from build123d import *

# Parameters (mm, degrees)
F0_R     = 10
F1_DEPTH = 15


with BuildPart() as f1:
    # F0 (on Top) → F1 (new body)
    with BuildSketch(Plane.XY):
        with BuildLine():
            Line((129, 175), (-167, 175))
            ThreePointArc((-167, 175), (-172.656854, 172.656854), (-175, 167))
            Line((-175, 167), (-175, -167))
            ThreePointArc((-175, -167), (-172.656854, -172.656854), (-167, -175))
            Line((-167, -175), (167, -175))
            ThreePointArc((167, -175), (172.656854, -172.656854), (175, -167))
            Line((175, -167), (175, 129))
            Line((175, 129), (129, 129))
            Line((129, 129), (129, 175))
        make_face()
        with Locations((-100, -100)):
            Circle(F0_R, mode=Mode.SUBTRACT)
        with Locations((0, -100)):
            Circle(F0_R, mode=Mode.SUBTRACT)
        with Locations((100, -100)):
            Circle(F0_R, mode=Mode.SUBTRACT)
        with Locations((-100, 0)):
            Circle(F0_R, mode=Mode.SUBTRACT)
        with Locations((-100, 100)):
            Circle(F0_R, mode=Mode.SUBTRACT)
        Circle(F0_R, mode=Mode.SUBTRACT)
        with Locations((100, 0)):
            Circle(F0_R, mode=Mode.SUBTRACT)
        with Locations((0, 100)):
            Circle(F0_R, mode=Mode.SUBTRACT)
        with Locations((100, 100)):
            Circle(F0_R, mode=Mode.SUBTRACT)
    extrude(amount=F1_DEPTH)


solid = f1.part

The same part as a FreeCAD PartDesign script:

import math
import FreeCAD as App
import Part
import Sketcher
from FreeCAD import Vector

doc = App.newDocument("Part")
body = doc.addObject("PartDesign::Body", "Body")

# Sketch on XY plane
sketch1 = doc.addObject("Sketcher::SketchObject", "Sketch")
body.addObject(sketch1)
sketch1.AttachmentSupport = (doc.XY_Plane, [""])
sketch1.MapMode = "FlatFace"
sketch1.addGeometry([
    Part.LineSegment(Vector(129, 175, 0), Vector(-167, 175, 0)),  # 0
    Part.ArcOfCircle(Part.Circle(Vector(-167, 167, 0), Vector(0, 0, 1), 8), math.radians(90), math.radians(180)),  # 1
    Part.LineSegment(Vector(-175, 167, 0), Vector(-175, -167, 0)),  # 2
    Part.ArcOfCircle(Part.Circle(Vector(-167, -167, 0), Vector(0, 0, 1), 8), math.radians(-180), math.radians(-90)),  # 3
    Part.LineSegment(Vector(-167, -175, 0), Vector(167, -175, 0)),  # 4
    Part.ArcOfCircle(Part.Circle(Vector(167, -167, 0), Vector(0, 0, 1), 8), math.radians(-90), math.radians(0)),  # 5
    Part.LineSegment(Vector(175, -167, 0), Vector(175, 129, 0)),  # 6
    Part.LineSegment(Vector(175, 129, 0), Vector(129, 129, 0)),  # 7
    Part.LineSegment(Vector(129, 129, 0), Vector(129, 175, 0)),  # 8
    Part.Circle(Vector(-100, -100, 0), Vector(0, 0, 1), 10),  # 9
    Part.Circle(Vector(0, -100, 0), Vector(0, 0, 1), 10),  # 10
    Part.Circle(Vector(100, -100, 0), Vector(0, 0, 1), 10),  # 11
    Part.Circle(Vector(-100, 0, 0), Vector(0, 0, 1), 10),  # 12
    Part.Circle(Vector(-100, 100, 0), Vector(0, 0, 1), 10),  # 13
    Part.Circle(Vector(0, 0, 0), Vector(0, 0, 1), 10),  # 14
    Part.Circle(Vector(100, 0, 0), Vector(0, 0, 1), 10),  # 15
    Part.Circle(Vector(0, 100, 0), Vector(0, 0, 1), 10),  # 16
    Part.Circle(Vector(100, 100, 0), Vector(0, 0, 1), 10),  # 17
], False)
sketch1.addConstraint([
    Sketcher.Constraint("Tangent", 0, 2, 1, 1),
    Sketcher.Constraint("Tangent", 1, 2, 2, 1),
    Sketcher.Constraint("Tangent", 2, 2, 3, 1),
    Sketcher.Constraint("Tangent", 3, 2, 4, 1),
    Sketcher.Constraint("Tangent", 4, 2, 5, 1),
    Sketcher.Constraint("Tangent", 5, 2, 6, 1),
    Sketcher.Constraint("Coincident", 6, 2, 7, 1),
    Sketcher.Constraint("Coincident", 7, 2, 8, 1),
    Sketcher.Constraint("Coincident", 8, 2, 0, 1),
    Sketcher.Constraint("Horizontal", 0),
    Sketcher.Constraint("Vertical", 2),
    Sketcher.Constraint("Horizontal", 4),
    Sketcher.Constraint("Vertical", 6),
    Sketcher.Constraint("Horizontal", 7),
    Sketcher.Constraint("Vertical", 8),
    Sketcher.Constraint("Coincident", 14, 3, -1, 1),
    Sketcher.Constraint("Equal", 1, 3),
    Sketcher.Constraint("Equal", 3, 5),
    Sketcher.Constraint("Equal", 9, 10),
    Sketcher.Constraint("Equal", 10, 11),
    Sketcher.Constraint("Equal", 11, 12),
    Sketcher.Constraint("Equal", 12, 13),
    Sketcher.Constraint("Equal", 13, 14),
    Sketcher.Constraint("Equal", 14, 15),
    Sketcher.Constraint("Equal", 15, 16),
    Sketcher.Constraint("Equal", 16, 17),
    Sketcher.Constraint("Symmetric", 1, 3, 5, 3, -1, 1),
    Sketcher.Constraint("Symmetric", 11, 3, 13, 3, -1, 1),
    Sketcher.Constraint("Symmetric", 12, 3, 15, 3, -1, 1),
    Sketcher.Constraint("Symmetric", 10, 3, 16, 3, -1, 1),
    Sketcher.Constraint("Symmetric", 9, 3, 17, 3, -1, 1),
    Sketcher.Constraint("Symmetric", 9, 3, 11, 3, -2),
    Sketcher.Constraint("PointOnObject", 10, 3, -2),
    Sketcher.Constraint("PointOnObject", 12, 3, -1),
    Sketcher.Constraint("Horizontal", 9, 3, 10, 3),
    Sketcher.Constraint("Vertical", 9, 3, 12, 3),
    Sketcher.Constraint("Equal", 4, 2),
    Sketcher.Constraint("Equal", 0, 6),
    Sketcher.Constraint("Diameter", 9, 20.0),
    Sketcher.Constraint("Radius", 1, 8.000001),
    Sketcher.Constraint("DistanceX", 0, 2, 0, 1, 296.0),
    Sketcher.Constraint("DistanceX", 4, 1, 4, 2, 334.0),
    Sketcher.Constraint("DistanceX", 9, 3, -1, 1, 100.0),
    Sketcher.Constraint("DistanceY", 9, 3, -1, 1, 100.0),
])
pad1 = doc.addObject("PartDesign::Pad", "Pad")
body.addObject(pad1)
pad1.Profile = sketch1
pad1.Length = 15

doc.recompute()
